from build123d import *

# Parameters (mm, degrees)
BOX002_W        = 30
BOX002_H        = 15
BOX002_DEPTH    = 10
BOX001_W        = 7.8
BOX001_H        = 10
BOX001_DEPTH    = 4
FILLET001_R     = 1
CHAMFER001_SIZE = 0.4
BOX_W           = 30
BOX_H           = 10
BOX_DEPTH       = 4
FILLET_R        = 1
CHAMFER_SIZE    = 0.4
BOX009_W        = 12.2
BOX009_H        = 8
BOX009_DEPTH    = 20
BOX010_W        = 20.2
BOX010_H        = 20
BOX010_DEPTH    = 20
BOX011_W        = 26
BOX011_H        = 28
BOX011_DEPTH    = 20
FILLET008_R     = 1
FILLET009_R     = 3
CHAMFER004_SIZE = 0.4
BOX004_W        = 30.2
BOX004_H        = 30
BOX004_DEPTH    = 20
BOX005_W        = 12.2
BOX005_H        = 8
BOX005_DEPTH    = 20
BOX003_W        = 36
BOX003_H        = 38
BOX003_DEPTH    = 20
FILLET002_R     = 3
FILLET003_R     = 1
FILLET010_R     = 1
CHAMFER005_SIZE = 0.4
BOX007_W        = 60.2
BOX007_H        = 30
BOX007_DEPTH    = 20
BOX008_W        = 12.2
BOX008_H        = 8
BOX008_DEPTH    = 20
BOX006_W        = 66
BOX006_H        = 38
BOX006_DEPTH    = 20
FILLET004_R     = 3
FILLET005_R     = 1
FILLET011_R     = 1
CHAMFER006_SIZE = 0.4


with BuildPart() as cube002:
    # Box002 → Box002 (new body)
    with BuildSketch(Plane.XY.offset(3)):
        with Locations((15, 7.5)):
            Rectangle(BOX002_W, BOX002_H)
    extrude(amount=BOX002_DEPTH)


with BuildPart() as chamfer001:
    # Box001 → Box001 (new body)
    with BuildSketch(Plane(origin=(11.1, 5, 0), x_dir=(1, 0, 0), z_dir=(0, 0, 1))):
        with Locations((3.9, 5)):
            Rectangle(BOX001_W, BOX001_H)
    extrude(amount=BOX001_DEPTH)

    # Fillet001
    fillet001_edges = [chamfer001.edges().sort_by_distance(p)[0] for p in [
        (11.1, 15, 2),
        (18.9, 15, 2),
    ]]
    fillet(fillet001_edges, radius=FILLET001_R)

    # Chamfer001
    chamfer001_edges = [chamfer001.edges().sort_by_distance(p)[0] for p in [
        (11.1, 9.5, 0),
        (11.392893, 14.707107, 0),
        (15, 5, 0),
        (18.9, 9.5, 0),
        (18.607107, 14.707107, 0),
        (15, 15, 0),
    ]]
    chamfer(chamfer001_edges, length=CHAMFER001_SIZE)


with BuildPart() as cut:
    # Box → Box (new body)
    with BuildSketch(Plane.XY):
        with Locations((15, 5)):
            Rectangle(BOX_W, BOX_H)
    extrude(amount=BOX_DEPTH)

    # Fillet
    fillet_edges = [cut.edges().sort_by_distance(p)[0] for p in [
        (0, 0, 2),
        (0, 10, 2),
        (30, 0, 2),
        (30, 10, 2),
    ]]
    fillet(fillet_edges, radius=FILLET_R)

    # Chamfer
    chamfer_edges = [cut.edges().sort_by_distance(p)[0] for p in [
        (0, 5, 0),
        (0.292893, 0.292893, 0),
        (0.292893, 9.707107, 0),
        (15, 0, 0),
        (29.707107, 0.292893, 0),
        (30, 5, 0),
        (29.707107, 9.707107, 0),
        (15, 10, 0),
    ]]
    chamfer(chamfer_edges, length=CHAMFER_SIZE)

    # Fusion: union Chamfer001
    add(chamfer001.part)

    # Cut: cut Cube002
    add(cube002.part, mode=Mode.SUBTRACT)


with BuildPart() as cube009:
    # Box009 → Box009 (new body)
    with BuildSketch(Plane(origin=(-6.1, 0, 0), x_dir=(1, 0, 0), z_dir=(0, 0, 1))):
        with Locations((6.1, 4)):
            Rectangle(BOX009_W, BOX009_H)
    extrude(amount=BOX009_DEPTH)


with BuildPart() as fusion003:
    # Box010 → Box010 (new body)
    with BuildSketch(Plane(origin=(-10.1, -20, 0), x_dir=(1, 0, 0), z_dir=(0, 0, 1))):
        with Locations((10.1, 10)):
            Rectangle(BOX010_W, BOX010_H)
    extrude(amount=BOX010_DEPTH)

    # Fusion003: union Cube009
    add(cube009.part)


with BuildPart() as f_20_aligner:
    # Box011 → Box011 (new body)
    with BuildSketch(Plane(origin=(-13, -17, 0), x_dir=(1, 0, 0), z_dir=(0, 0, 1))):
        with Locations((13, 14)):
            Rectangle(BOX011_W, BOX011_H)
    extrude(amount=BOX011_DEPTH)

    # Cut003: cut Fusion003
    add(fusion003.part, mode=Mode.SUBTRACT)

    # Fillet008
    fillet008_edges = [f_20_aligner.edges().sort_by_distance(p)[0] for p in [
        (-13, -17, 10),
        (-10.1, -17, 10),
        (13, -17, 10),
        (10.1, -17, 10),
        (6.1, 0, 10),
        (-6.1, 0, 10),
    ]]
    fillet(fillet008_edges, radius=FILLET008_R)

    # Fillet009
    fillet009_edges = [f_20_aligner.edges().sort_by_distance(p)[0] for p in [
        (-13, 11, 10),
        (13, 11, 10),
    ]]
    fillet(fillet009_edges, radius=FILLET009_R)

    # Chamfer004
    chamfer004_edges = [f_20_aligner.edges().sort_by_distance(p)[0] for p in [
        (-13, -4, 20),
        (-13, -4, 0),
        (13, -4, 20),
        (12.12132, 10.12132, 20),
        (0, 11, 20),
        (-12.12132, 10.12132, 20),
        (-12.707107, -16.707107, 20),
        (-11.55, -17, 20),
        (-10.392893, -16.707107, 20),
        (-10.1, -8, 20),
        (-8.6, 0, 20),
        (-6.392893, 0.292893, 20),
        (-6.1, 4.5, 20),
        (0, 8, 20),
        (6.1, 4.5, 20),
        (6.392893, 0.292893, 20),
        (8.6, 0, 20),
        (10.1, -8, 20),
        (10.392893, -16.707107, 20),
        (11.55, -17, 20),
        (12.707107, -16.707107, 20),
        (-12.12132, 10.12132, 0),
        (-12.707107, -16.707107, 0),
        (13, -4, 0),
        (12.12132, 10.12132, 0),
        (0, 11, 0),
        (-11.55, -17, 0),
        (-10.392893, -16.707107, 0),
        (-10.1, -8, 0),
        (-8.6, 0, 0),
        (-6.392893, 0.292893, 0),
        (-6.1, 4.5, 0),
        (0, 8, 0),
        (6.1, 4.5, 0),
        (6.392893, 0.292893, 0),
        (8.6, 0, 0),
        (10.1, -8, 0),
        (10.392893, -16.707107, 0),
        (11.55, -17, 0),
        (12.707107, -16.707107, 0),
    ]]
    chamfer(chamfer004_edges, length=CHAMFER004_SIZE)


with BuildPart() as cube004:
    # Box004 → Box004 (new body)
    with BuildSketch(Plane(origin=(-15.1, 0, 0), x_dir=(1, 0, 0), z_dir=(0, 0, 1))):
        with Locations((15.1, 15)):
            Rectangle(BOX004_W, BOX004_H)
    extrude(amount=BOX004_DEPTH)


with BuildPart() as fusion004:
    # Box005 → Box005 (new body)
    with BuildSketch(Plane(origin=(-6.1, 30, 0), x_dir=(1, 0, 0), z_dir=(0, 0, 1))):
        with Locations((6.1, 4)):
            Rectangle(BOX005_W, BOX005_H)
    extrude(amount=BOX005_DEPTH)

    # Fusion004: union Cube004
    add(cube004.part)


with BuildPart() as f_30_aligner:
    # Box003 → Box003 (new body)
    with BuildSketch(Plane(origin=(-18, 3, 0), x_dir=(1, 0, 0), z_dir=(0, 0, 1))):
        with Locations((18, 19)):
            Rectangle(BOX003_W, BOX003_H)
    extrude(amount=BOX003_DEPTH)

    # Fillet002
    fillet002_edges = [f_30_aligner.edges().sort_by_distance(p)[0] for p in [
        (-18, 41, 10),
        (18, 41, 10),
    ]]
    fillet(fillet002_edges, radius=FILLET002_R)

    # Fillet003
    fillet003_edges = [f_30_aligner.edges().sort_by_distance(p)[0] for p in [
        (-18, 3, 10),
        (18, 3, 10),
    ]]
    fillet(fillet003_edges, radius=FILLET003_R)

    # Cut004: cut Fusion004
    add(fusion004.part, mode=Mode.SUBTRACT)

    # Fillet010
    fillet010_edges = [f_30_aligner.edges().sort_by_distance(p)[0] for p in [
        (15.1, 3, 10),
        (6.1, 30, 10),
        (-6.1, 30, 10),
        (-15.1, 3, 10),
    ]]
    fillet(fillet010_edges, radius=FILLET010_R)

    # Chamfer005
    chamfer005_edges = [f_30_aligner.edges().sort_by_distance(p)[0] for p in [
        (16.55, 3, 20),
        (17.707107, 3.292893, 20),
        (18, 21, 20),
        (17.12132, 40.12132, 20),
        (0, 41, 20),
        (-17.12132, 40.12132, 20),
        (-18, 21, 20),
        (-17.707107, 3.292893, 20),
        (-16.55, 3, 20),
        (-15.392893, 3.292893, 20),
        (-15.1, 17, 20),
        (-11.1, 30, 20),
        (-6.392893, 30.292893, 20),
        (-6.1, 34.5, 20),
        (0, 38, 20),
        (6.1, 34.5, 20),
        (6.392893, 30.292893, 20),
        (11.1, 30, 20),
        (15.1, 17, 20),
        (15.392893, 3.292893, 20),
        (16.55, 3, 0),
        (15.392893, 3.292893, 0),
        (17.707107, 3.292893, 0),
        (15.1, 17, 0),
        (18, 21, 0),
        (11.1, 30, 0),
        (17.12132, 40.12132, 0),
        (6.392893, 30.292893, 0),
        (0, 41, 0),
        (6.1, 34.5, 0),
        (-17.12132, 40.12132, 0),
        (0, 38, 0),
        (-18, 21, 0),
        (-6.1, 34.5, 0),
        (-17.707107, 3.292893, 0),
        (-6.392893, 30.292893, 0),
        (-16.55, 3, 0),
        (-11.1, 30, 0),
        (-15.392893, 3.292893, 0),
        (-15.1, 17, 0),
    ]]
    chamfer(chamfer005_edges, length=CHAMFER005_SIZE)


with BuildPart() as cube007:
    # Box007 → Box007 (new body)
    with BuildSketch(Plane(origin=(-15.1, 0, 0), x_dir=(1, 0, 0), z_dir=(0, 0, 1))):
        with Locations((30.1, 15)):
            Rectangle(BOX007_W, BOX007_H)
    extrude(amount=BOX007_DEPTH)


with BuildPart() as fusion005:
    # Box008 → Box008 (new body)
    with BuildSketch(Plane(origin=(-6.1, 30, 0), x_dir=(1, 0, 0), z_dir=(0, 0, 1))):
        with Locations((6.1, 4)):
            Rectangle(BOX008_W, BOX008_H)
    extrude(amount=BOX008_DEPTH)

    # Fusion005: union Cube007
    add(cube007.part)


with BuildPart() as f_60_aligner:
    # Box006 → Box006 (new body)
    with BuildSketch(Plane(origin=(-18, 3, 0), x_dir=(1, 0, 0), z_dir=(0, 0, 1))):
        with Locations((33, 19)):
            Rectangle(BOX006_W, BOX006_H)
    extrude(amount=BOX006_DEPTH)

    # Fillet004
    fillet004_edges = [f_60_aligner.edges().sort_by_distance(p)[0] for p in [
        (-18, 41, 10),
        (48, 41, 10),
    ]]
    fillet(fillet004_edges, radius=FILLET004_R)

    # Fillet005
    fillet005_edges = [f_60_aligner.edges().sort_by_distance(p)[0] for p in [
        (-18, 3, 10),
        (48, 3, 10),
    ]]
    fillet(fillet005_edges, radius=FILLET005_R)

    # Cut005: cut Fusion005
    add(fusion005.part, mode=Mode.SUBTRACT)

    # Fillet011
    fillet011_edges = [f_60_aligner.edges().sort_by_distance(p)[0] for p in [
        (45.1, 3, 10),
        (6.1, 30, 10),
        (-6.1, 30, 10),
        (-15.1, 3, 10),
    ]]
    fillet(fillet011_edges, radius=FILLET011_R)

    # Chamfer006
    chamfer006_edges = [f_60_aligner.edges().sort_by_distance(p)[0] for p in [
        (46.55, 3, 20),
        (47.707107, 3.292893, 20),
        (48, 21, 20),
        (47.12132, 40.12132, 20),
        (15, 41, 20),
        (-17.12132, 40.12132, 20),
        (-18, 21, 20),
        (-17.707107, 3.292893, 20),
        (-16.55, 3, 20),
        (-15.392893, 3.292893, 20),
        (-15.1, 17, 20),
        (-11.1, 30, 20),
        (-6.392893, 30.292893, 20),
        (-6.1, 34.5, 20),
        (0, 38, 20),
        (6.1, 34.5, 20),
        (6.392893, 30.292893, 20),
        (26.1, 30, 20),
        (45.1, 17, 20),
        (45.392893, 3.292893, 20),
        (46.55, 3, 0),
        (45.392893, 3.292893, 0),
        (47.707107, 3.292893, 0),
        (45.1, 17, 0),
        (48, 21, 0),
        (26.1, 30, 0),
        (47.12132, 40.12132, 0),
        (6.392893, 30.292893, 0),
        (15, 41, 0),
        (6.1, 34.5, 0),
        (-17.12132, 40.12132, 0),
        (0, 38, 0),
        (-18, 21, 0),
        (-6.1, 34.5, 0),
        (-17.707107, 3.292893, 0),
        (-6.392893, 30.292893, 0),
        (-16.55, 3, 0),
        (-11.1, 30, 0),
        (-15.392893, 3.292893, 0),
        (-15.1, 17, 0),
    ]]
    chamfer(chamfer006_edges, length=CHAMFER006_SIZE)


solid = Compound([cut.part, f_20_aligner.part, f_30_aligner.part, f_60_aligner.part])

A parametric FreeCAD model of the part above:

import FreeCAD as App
import Part
import Sketcher

V = App.Vector


def edges_at(feature, points):
    """Names of the edges that pass closest to the given points."""
    edges = feature.Shape.Edges
    near = lambda p: min(range(len(edges)), key=lambda i: edges[i].distToShape(Part.Vertex(*p))[0])
    return sorted({f"Edge{near(p) + 1}" for p in points})


def add_polygon(sketch, points):
    """Adds a closed chain of lines whose ends are joined by coincident constraints."""
    first, n = sketch.GeometryCount, len(points)
    for a, b in zip(points, points[1:] + points[:1]):
        sketch.addGeometry(Part.LineSegment(App.Vector(*a, 0), App.Vector(*b, 0)), False)
    for i in range(n):
        sketch.addConstraint(Sketcher.Constraint("Coincident", first + i, 2, first + (i + 1) % n, 1))

doc = App.newDocument("Part")
body = doc.addObject("PartDesign::Body", "Body")

# Sketch on XY plane
sketch1 = body.newObject("Sketcher::SketchObject", "Sketch")
sketch1.AttachmentSupport = (doc.getObject("XY_Plane"), [""])
sketch1.MapMode = "FlatFace"
sketch1.AttachmentOffset = App.Placement(V(0, 0, 3), App.Rotation())
add_polygon(sketch1, [(0, 15), (0, 0), (30, 0), (30, 15)])  # lines 0-3
sketch1.addConstraint([
    Sketcher.Constraint("Vertical", 0),
    Sketcher.Constraint("Horizontal", 1),
    Sketcher.Constraint("Vertical", 2),
    Sketcher.Constraint("Horizontal", 3),
    Sketcher.Constraint("Coincident", 0, 2, -1, 1),
    Sketcher.Constraint("DistanceX", 1, 1, 1, 2, 30.0),
    Sketcher.Constraint("DistanceY", 0, 2, 0, 1, 15.0),
])
pad1 = body.newObject("PartDesign::Pad", "Pad")
pad1.Profile = sketch1
pad1.Length = 10
body2 = doc.addObject("PartDesign::Body", "Body001")

# Sketch on XY plane
sketch2 = body2.newObject("Sketcher::SketchObject", "Sketch001")
sketch2.AttachmentSupport = (doc.getObject("XY_Plane001"), [""])
sketch2.MapMode = "FlatFace"
add_polygon(sketch2, [(11.1, 15), (11.1, 5), (18.9, 5), (18.9, 15)])  # lines 0-3
sketch2.addConstraint([
    Sketcher.Constraint("Vertical", 0),
    Sketcher.Constraint("Horizontal", 1),
    Sketcher.Constraint("Vertical", 2),
    Sketcher.Constraint("Horizontal", 3),
    Sketcher.Constraint("DistanceY", 0, 2, 0, 1, 10.0),
    Sketcher.Constraint("DistanceX", 1, 1, 1, 2, 7.8),
    Sketcher.Constraint("DistanceY", -1, 1, 0, 2, 5.0),
    Sketcher.Constraint("DistanceX", -1, 1, 0, 2, 11.1),
])
pad2 = body2.newObject("PartDesign::Pad", "Pad001")
pad2.Profile = sketch2
pad2.Length = 4
doc.recompute()

fillet = body2.newObject("PartDesign::Fillet", "Fillet")
fillet.Base = (pad2, edges_at(pad2, [(11.1, 15, 2), (18.9, 15, 2)]))
fillet.Radius = 1
doc.recompute()

chamfer = body2.newObject("PartDesign::Chamfer", "Chamfer")
chamfer.Base = (fillet, edges_at(fillet, [
    (11.1, 9.5, 0),
    (11.393, 14.707, 0),
    (15, 5, 0),
    (18.9, 9.5, 0),
    (18.607, 14.707, 0),
    (15, 15, 0),
]))
chamfer.Size = 0.4
body3 = doc.addObject("PartDesign::Body", "Body002")

# Sketch on XY plane
sketch3 = body3.newObject("Sketcher::SketchObject", "Sketch002")
sketch3.AttachmentSupport = (doc.getObject("XY_Plane002"), [""])
sketch3.MapMode = "FlatFace"
add_polygon(sketch3, [(0, 10), (0, 0), (30, 0), (30, 10)])  # lines 0-3
sketch3.addConstraint([
    Sketcher.Constraint("Vertical", 0),
    Sketcher.Constraint("Horizontal", 1),
    Sketcher.Constraint("Vertical", 2),
    Sketcher.Constraint("Horizontal", 3),
    Sketcher.Constraint("Coincident", 0, 2, -1, 1),
    Sketcher.Constraint("DistanceX", 1, 1, 1, 2, 30.0),
    Sketcher.Constraint("DistanceY", 0, 2, 0, 1, 10.0),
])
pad3 = body3.newObject("PartDesign::Pad", "Pad002")
pad3.Profile = sketch3
pad3.Length = 4
doc.recompute()

fillet2 = body3.newObject("PartDesign::Fillet", "Fillet001")
fillet2.Base = (pad3, edges_at(pad3, [
    (0, 0, 2),
    (0, 10, 2),
    (30, 0, 2),
    (30, 10, 2),
]))
fillet2.Radius = 1
doc.recompute()

chamfer2 = body3.newObject("PartDesign::Chamfer", "Chamfer001")
chamfer2.Base = (fillet2, edges_at(fillet2, [
    (0, 5, 0),
    (0.293, 0.293, 0),
    (0.293, 9.707, 0),
    (15, 0, 0),
    (29.707, 0.293, 0),
    (30, 5, 0),
    (29.707, 9.707, 0),
    (15, 10, 0),
]))
chamfer2.Size = 0.4
doc.recompute()

boolean = body3.newObject("PartDesign::Boolean", "Boolean")
boolean.Type = "Fuse"
boolean.addObjects([body2])
doc.recompute()

boolean2 = body3.newObject("PartDesign::Boolean", "Boolean001")
boolean2.Type = "Cut"
boolean2.addObjects([body])
body4 = doc.addObject("PartDesign::Body", "Body003")

# Sketch on XY plane
sketch4 = body4.newObject("Sketcher::SketchObject", "Sketch003")
sketch4.AttachmentSupport = (doc.getObject("XY_Plane003"), [""])
sketch4.MapMode = "FlatFace"
add_polygon(sketch4, [(-6.1, 8), (-6.1, 0), (6.1, 0), (6.1, 8)])  # lines 0-3
sketch4.addConstraint([
    Sketcher.Constraint("Vertical", 0),
    Sketcher.Constraint("Horizontal", 1),
    Sketcher.Constraint("Vertical", 2),
    Sketcher.Constraint("Horizontal", 3),
    Sketcher.Constraint("Symmetric", 0, 2, 1, 2, -1, 1),
    Sketcher.Constraint("DistanceY", 0, 2, 0, 1, 8.0),
    Sketcher.Constraint("DistanceX", 1, 1, 1, 2, 12.2),
])
pad4 = body4.newObject("PartDesign::Pad", "Pad003")
pad4.Profile = sketch4
pad4.Length = 20
body5 = doc.addObject("PartDesign::Body", "Body004")

# Sketch on XY plane
sketch5 = body5.newObject("Sketcher::SketchObject", "Sketch004")
sketch5.AttachmentSupport = (doc.getObject("XY_Plane004"), [""])
sketch5.MapMode = "FlatFace"
add_polygon(sketch5, [(-10.1, 0), (-10.1, -20), (10.1, -20), (10.1, 0)])  # lines 0-3
sketch5.addConstraint([
    Sketcher.Constraint("Vertical", 0),
    Sketcher.Constraint("Horizontal", 1),
    Sketcher.Constraint("Vertical", 2),
    Sketcher.Constraint("Horizontal", 3),
    Sketcher.Constraint("Symmetric", 2, 2, 3, 2, -1, 1),
    Sketcher.Constraint("DistanceY", 0, 2, 0, 1, 20.0),
    Sketcher.Constraint("DistanceX", 1, 1, 1, 2, 20.2),
])
pad5 = body5.newObject("PartDesign::Pad", "Pad004")
pad5.Profile = sketch5
pad5.Length = 20
doc.recompute()

boolean3 = body5.newObject("PartDesign::Boolean", "Boolean002")
boolean3.Type = "Fuse"
boolean3.addObjects([body4])
body6 = doc.addObject("PartDesign::Body", "Body005")

# Sketch on XY plane
sketch6 = body6.newObject("Sketcher::SketchObject", "Sketch005")
sketch6.AttachmentSupport = (doc.getObject("XY_Plane005"), [""])
sketch6.MapMode = "FlatFace"
add_polygon(sketch6, [(-13, 11), (-13, -17), (13, -17), (13, 11)])  # lines 0-3
sketch6.addConstraint([
    Sketcher.Constraint("Vertical", 0),
    Sketcher.Constraint("Horizontal", 1),
    Sketcher.Constraint("Vertical", 2),
    Sketcher.Constraint("Horizontal", 3),
    Sketcher.Constraint("DistanceX", 1, 1, 1, 2, 26.0),
    Sketcher.Constraint("DistanceY", 0, 2, 0, 1, 28.0),
    Sketcher.Constraint("DistanceX", 0, 2, -1, 1, 13.0),
    Sketcher.Constraint("DistanceY", 0, 2, -1, 1, 17.0),
])
pad6 = body6.newObject("PartDesign::Pad", "Pad005")
pad6.Profile = sketch6
pad6.Length = 20
doc.recompute()

boolean4 = body6.newObject("PartDesign::Boolean", "Boolean003")
boolean4.Type = "Cut"
boolean4.addObjects([body5])
doc.recompute()

fillet3 = body6.newObject("PartDesign::Fillet", "Fillet002")
fillet3.Base = (boolean4, edges_at(boolean4, [
    (-13, -17, 10),
    (-10.1, -17, 10),
    (13, -17, 10),
    (10.1, -17, 10),
    (6.1, 0, 10),
    (-6.1, 0, 10),
]))
fillet3.Radius = 1
doc.recompute()

fillet4 = body6.newObject("PartDesign::Fillet", "Fillet003")
fillet4.Base = (fillet3, edges_at(fillet3, [(-13, 11, 10), (13, 11, 10)]))
fillet4.Radius = 3
doc.recompute()

chamfer3 = body6.newObject("PartDesign::Chamfer", "Chamfer002")
chamfer3.Base = (fillet4, edges_at(fillet4, [
    (-13, -4, 20),
    (-13, -4, 0),
    (13, -4, 20),
    (12.121, 10.121, 20),
    (0, 11, 20),
    (-12.121, 10.121, 20),
    (-12.707, -16.707, 20),
    (-11.55, -17, 20),
    (-10.393, -16.707, 20),
    (-10.1, -8, 20),
    (-8.6, 0, 20),
    (-6.393, 0.293, 20),
    (-6.1, 4.5, 20),
    (0, 8, 20),
    (6.1, 4.5, 20),
    (6.393, 0.293, 20),
    (8.6, 0, 20),
    (10.1, -8, 20),
    (10.393, -16.707, 20),
    (11.55, -17, 20),
    (12.707, -16.707, 20),
    (-12.121, 10.121, 0),
    (-12.707, -16.707, 0),
    (13, -4, 0),
    (12.121, 10.121, 0),
    (0, 11, 0),
    (-11.55, -17, 0),
    (-10.393, -16.707, 0),
    (-10.1, -8, 0),
    (-8.6, 0, 0),
    (-6.393, 0.293, 0),
    (-6.1, 4.5, 0),
    (0, 8, 0),
    (6.1, 4.5, 0),
    (6.393, 0.293, 0),
    (8.6, 0, 0),
    (10.1, -8, 0),
    (10.393, -16.707, 0),
    (11.55, -17, 0),
    (12.707, -16.707, 0),
]))
chamfer3.Size = 0.4
body7 = doc.addObject("PartDesign::Body", "Body006")

# Sketch on XY plane
sketch7 = body7.newObject("Sketcher::SketchObject", "Sketch006")
sketch7.AttachmentSupport = (doc.getObject("XY_Plane006"), [""])
sketch7.MapMode = "FlatFace"
add_polygon(sketch7, [(-15.1, 30), (-15.1, 0), (15.1, 0), (15.1, 30)])  # lines 0-3
sketch7.addConstraint([
    Sketcher.Constraint("Vertical", 0),
    Sketcher.Constraint("Horizontal", 1),
    Sketcher.Constraint("Vertical", 2),
    Sketcher.Constraint("Horizontal", 3),
    Sketcher.Constraint("Symmetric", 0, 2, 1, 2, -1, 1),
    Sketcher.Constraint("DistanceY", 0, 2, 0, 1, 30.0),
    Sketcher.Constraint("DistanceX", 1, 1, 1, 2, 30.2),
])
pad7 = body7.newObject("PartDesign::Pad", "Pad006")
pad7.Profile = sketch7
pad7.Length = 20
body8 = doc.addObject("PartDesign::Body", "Body007")

# Sketch on XY plane
sketch8 = body8.newObject("Sketcher::SketchObject", "Sketch007")
sketch8.AttachmentSupport = (doc.getObject("XY_Plane007"), [""])
sketch8.MapMode = "FlatFace"
add_polygon(sketch8, [(-6.1, 38), (-6.1, 30), (6.1, 30), (6.1, 38)])  # lines 0-3
sketch8.addConstraint([
    Sketcher.Constraint("Vertical", 0),
    Sketcher.Constraint("Horizontal", 1),
    Sketcher.Constraint("Vertical", 2),
    Sketcher.Constraint("Horizontal", 3),
    Sketcher.Constraint("DistanceY", 0, 2, 0, 1, 8.0),
    Sketcher.Constraint("DistanceX", 1, 1, 1, 2, 12.2),
    Sketcher.Constraint("DistanceY", -1, 1, 0, 2, 30.0),
    Sketcher.Constraint("DistanceX", 0, 2, -1, 1, 6.1),
])
pad8 = body8.newObject("PartDesign::Pad", "Pad007")
pad8.Profile = sketch8
pad8.Length = 20
doc.recompute()

boolean5 = body8.newObject("PartDesign::Boolean", "Boolean004")
boolean5.Type = "Fuse"
boolean5.addObjects([body7])
body9 = doc.addObject("PartDesign::Body", "Body008")

# Sketch on XY plane
sketch9 = body9.newObject("Sketcher::SketchObject", "Sketch008")
sketch9.AttachmentSupport = (doc.getObject("XY_Plane008"), [""])
sketch9.MapMode = "FlatFace"
add_polygon(sketch9, [(-18, 41), (-18, 3), (18, 3), (18, 41)])  # lines 0-3
sketch9.addConstraint([
    Sketcher.Constraint("Vertical", 0),
    Sketcher.Constraint("Horizontal", 1),
    Sketcher.Constraint("Vertical", 2),
    Sketcher.Constraint("Horizontal", 3),
    Sketcher.Constraint("DistanceX", 1, 1, 1, 2, 36.0),
    Sketcher.Constraint("DistanceY", 0, 2, 0, 1, 38.0),
    Sketcher.Constraint("DistanceX", 0, 2, -1, 1, 18.0),
    Sketcher.Constraint("DistanceY", -1, 1, 0, 2, 3.0),
])
pad9 = body9.newObject("PartDesign::Pad", "Pad008")
pad9.Profile = sketch9
pad9.Length = 20
doc.recompute()

fillet5 = body9.newObject("PartDesign::Fillet", "Fillet004")
fillet5.Base = (pad9, edges_at(pad9, [(-18, 41, 10), (18, 41, 10)]))
fillet5.Radius = 3
doc.recompute()

fillet6 = body9.newObject("PartDesign::Fillet", "Fillet005")
fillet6.Base = (fillet5, edges_at(fillet5, [(-18, 3, 10), (18, 3, 10)]))
fillet6.Radius = 1
doc.recompute()

boolean6 = body9.newObject("PartDesign::Boolean", "Boolean005")
boolean6.Type = "Cut"
boolean6.addObjects([body8])
doc.recompute()

fillet7 = body9.newObject("PartDesign::Fillet", "Fillet006")
fillet7.Base = (boolean6, edges_at(boolean6, [
    (15.1, 3, 10),
    (6.1, 30, 10),
    (-6.1, 30, 10),
    (-15.1, 3, 10),
]))
fillet7.Radius = 1
doc.recompute()

chamfer4 = body9.newObject("PartDesign::Chamfer", "Chamfer003")
chamfer4.Base = (fillet7, edges_at(fillet7, [
    (16.55, 3, 20),
    (17.707, 3.293, 20),
    (18, 21, 20),
    (17.121, 40.121, 20),
    (0, 41, 20),
    (-17.121, 40.121, 20),
    (-18, 21, 20),
    (-17.707, 3.293, 20),
    (-16.55, 3, 20),
    (-15.393, 3.293, 20),
    (-15.1, 17, 20),
    (-11.1, 30, 20),
    (-6.393, 30.293, 20),
    (-6.1, 34.5, 20),
    (0, 38, 20),
    (6.1, 34.5, 20),
    (6.393, 30.293, 20),
    (11.1, 30, 20),
    (15.1, 17, 20),
    (15.393, 3.293, 20),
    (16.55, 3, 0),
    (15.393, 3.293, 0),
    (17.707, 3.293, 0),
    (15.1, 17, 0),
    (18, 21, 0),
    (11.1, 30, 0),
    (17.121, 40.121, 0),
    (6.393, 30.293, 0),
    (0, 41, 0),
    (6.1, 34.5, 0),
    (-17.121, 40.121, 0),
    (0, 38, 0),
    (-18, 21, 0),
    (-6.1, 34.5, 0),
    (-17.707, 3.293, 0),
    (-6.393, 30.293, 0),
    (-16.55, 3, 0),
    (-11.1, 30, 0),
    (-15.393, 3.293, 0),
    (-15.1, 17, 0),
]))
chamfer4.Size = 0.4
body10 = doc.addObject("PartDesign::Body", "Body009")

# Sketch on XY plane
sketch10 = body10.newObject("Sketcher::SketchObject", "Sketch009")
sketch10.AttachmentSupport = (doc.getObject("XY_Plane009"), [""])
sketch10.MapMode = "FlatFace"
add_polygon(sketch10, [(-15.1, 30), (-15.1, 0), (45.1, 0), (45.1, 30)])  # lines 0-3
sketch10.addConstraint([
    Sketcher.Constraint("Vertical", 0),
    Sketcher.Constraint("Horizontal", 1),
    Sketcher.Constraint("Vertical", 2),
    Sketcher.Constraint("Horizontal", 3),
    Sketcher.Constraint("PointOnObject", 0, 2, -1),
    Sketcher.Constraint("DistanceY", 0, 2, 0, 1, 30.0),
    Sketcher.Constraint("DistanceX", 1, 1, 1, 2, 60.2),
    Sketcher.Constraint("DistanceX", 0, 2, -1, 1, 15.1),
])
pad10 = body10.newObject("PartDesign::Pad", "Pad009")
pad10.Profile = sketch10
pad10.Length = 20
body11 = doc.addObject("PartDesign::Body", "Body010")

# Sketch on XY plane
sketch11 = body11.newObject("Sketcher::SketchObject", "Sketch010")
sketch11.AttachmentSupport = (doc.getObject("XY_Plane010"), [""])
sketch11.MapMode = "FlatFace"
add_polygon(sketch11, [(-6.1, 38), (-6.1, 30), (6.1, 30), (6.1, 38)])  # lines 0-3
sketch11.addConstraint([
    Sketcher.Constraint("Vertical", 0),
    Sketcher.Constraint("Horizontal", 1),
    Sketcher.Constraint("Vertical", 2),
    Sketcher.Constraint("Horizontal", 3),
    Sketcher.Constraint("DistanceY", 0, 2, 0, 1, 8.0),
    Sketcher.Constraint("DistanceX", 1, 1, 1, 2, 12.2),
    Sketcher.Constraint("DistanceY", -1, 1, 0, 2, 30.0),
    Sketcher.Constraint("DistanceX", 0, 2, -1, 1, 6.1),
])
pad11 = body11.newObject("PartDesign::Pad", "Pad010")
pad11.Profile = sketch11
pad11.Length = 20
doc.recompute()

boolean7 = body11.newObject("PartDesign::Boolean", "Boolean006")
boolean7.Type = "Fuse"
boolean7.addObjects([body10])
body12 = doc.addObject("PartDesign::Body", "Body011")

# Sketch on XY plane
sketch12 = body12.newObject("Sketcher::SketchObject", "Sketch011")
sketch12.AttachmentSupport = (doc.getObject("XY_Plane011"), [""])
sketch12.MapMode = "FlatFace"
add_polygon(sketch12, [(-18, 41), (-18, 3), (48, 3), (48, 41)])  # lines 0-3
sketch12.addConstraint([
    Sketcher.Constraint("Vertical", 0),
    Sketcher.Constraint("Horizontal", 1),
    Sketcher.Constraint("Vertical", 2),
    Sketcher.Constraint("Horizontal", 3),
    Sketcher.Constraint("DistanceX", 1, 1, 1, 2, 66.0),
    Sketcher.Constraint("DistanceY", 0, 2, 0, 1, 38.0),
    Sketcher.Constraint("DistanceX", 0, 2, -1, 1, 18.0),
    Sketcher.Constraint("DistanceY", -1, 1, 0, 2, 3.0),
])
pad12 = body12.newObject("PartDesign::Pad", "Pad011")
pad12.Profile = sketch12
pad12.Length = 20
doc.recompute()

fillet8 = body12.newObject("PartDesign::Fillet", "Fillet007")
fillet8.Base = (pad12, edges_at(pad12, [(-18, 41, 10), (48, 41, 10)]))
fillet8.Radius = 3
doc.recompute()

fillet9 = body12.newObject("PartDesign::Fillet", "Fillet008")
fillet9.Base = (fillet8, edges_at(fillet8, [(-18, 3, 10), (48, 3, 10)]))
fillet9.Radius = 1
doc.recompute()

boolean8 = body12.newObject("PartDesign::Boolean", "Boolean007")
boolean8.Type = "Cut"
boolean8.addObjects([body11])
doc.recompute()

fillet10 = body12.newObject("PartDesign::Fillet", "Fillet009")
fillet10.Base = (boolean8, edges_at(boolean8, [
    (45.1, 3, 10),
    (6.1, 30, 10),
    (-6.1, 30, 10),
    (-15.1, 3, 10),
]))
fillet10.Radius = 1
doc.recompute()

chamfer5 = body12.newObject("PartDesign::Chamfer", "Chamfer004")
chamfer5.Base = (fillet10, edges_at(fillet10, [
    (46.55, 3, 20),
    (47.707, 3.293, 20),
    (48, 21, 20),
    (47.121, 40.121, 20),
    (15, 41, 20),
    (-17.121, 40.121, 20),
    (-18, 21, 20),
    (-17.707, 3.293, 20),
    (-16.55, 3, 20),
    (-15.393, 3.293, 20),
    (-15.1, 17, 20),
    (-11.1, 30, 20),
    (-6.393, 30.293, 20),
    (-6.1, 34.5, 20),
    (0, 38, 20),
    (6.1, 34.5, 20),
    (6.393, 30.293, 20),
    (26.1, 30, 20),
    (45.1, 17, 20),
    (45.393, 3.293, 20),
    (46.55, 3, 0),
    (45.393, 3.293, 0),
    (47.707, 3.293, 0),
    (45.1, 17, 0),
    (48, 21, 0),
    (26.1, 30, 0),
    (47.121, 40.121, 0),
    (6.393, 30.293, 0),
    (15, 41, 0),
    (6.1, 34.5, 0),
    (-17.121, 40.121, 0),
    (0, 38, 0),
    (-18, 21, 0),
    (-6.1, 34.5, 0),
    (-17.707, 3.293, 0),
    (-6.393, 30.293, 0),
    (-16.55, 3, 0),
    (-11.1, 30, 0),
    (-15.393, 3.293, 0),
    (-15.1, 17, 0),
]))
chamfer5.Size = 0.4

doc.recompute()
